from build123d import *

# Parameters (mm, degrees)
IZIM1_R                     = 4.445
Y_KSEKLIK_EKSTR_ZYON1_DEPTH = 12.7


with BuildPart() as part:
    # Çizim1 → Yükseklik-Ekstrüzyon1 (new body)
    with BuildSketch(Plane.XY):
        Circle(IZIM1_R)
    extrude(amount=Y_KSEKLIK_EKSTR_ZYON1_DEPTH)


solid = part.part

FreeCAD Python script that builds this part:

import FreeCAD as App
import Part
import Sketcher
from FreeCAD import Vector
Q = App.Units.Quantity

doc = App.newDocument("Part")
body = doc.addObject("PartDesign::Body", "Body")

sketch1 = body.newObject("Sketcher::SketchObject", "Sketch")
sketch1.AttachmentSupport = (doc.getObject("XY_Plane"), [""])
sketch1.MapMode = "FlatFace"
sketch1.addGeometry(Part.Circle(Vector(0, 0, 0), Vector(0, 0, 1), 4.445), False)
sketch1.addConstraint(Sketcher.Constraint("Coincident", 0, 3, -1, 1))
sketch1.addConstraint(Sketcher.Constraint("Diameter", 0, Q("0.35 in")))
pad1 = body.newObject("PartDesign::Pad", "Pad")
pad1.Profile = sketch1
pad1.Length = Q("0.5 in")

doc.recompute()
